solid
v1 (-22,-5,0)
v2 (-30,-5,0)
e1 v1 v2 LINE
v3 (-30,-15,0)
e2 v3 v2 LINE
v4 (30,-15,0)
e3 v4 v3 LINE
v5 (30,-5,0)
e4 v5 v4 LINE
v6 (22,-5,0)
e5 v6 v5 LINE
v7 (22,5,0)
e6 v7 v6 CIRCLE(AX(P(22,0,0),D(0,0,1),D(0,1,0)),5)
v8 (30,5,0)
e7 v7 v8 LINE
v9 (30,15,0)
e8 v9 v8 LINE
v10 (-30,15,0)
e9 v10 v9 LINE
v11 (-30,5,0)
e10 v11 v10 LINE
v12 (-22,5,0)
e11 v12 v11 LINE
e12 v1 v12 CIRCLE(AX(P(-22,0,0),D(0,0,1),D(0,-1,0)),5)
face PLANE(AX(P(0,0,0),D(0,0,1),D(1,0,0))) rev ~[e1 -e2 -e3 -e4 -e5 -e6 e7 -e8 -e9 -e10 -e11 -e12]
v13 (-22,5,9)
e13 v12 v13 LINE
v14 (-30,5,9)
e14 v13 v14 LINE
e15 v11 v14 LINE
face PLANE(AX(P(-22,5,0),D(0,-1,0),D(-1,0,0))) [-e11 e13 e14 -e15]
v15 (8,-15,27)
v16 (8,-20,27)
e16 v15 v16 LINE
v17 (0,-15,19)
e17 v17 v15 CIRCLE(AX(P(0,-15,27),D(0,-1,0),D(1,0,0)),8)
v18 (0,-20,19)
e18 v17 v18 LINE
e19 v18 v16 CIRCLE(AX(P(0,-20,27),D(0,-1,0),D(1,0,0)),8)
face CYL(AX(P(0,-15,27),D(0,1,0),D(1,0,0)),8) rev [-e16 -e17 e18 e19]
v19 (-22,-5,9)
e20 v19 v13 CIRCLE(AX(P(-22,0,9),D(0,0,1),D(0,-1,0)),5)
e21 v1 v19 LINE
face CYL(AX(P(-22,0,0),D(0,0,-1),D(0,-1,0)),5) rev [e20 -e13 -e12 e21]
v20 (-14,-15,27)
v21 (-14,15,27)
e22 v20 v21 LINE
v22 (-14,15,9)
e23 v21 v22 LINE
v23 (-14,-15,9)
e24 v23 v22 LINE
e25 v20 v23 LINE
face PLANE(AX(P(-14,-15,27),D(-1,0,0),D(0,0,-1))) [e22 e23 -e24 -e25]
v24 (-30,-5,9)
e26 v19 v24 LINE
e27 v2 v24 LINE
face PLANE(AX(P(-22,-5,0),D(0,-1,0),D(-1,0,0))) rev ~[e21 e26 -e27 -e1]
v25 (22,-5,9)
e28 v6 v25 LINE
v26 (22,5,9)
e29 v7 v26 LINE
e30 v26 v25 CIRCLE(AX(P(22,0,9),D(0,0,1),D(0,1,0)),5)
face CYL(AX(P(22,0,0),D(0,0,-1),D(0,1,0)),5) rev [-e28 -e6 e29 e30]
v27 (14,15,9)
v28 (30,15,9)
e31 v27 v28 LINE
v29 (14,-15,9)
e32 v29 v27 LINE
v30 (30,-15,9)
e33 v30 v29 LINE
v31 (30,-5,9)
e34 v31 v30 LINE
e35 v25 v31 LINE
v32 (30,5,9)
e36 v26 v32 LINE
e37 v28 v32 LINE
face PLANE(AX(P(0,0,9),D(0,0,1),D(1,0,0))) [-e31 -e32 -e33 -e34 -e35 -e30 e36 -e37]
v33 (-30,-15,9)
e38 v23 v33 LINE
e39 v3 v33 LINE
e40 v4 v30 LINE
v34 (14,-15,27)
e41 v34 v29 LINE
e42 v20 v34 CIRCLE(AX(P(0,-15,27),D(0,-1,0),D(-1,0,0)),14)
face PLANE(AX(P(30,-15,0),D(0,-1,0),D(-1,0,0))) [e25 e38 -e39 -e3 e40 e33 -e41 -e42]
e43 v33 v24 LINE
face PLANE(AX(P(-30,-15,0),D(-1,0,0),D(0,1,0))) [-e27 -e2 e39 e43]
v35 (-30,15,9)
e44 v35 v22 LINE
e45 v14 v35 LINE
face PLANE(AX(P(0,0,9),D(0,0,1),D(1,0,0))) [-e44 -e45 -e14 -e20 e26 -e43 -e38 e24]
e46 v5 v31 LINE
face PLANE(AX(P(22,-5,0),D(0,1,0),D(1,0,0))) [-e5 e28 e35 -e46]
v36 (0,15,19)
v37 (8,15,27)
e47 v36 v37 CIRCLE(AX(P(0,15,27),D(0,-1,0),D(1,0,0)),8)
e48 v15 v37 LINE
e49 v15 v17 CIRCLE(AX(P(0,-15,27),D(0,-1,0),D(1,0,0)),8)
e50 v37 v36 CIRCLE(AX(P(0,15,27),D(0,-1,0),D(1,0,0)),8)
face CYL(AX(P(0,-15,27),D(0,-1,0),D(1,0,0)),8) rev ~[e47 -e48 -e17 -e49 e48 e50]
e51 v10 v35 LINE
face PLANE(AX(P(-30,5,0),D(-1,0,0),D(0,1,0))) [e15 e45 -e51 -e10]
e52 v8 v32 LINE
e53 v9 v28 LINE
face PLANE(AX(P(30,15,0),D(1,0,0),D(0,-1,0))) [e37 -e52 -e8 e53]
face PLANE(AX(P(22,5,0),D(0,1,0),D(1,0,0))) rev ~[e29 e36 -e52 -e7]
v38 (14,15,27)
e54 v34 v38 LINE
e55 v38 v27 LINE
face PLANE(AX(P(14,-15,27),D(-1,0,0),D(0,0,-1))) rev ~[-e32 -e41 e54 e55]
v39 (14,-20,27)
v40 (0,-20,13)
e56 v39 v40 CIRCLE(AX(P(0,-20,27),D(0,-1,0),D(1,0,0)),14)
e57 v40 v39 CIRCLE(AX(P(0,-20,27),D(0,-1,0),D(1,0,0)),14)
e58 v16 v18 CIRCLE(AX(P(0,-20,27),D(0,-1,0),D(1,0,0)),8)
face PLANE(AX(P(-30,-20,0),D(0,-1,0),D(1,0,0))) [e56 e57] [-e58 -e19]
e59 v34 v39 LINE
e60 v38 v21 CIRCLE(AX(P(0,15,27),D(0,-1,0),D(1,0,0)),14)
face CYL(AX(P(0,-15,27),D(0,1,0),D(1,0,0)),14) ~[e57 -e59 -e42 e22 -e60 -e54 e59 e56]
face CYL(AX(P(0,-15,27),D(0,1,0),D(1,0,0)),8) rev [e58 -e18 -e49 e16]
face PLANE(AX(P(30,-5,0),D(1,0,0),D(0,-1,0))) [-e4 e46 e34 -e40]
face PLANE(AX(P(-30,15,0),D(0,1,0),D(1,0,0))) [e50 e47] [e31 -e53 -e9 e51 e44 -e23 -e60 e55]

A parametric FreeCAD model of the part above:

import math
import FreeCAD as App
import Part
import Sketcher
from FreeCAD import Vector

doc = App.newDocument("Part")
body = doc.addObject("PartDesign::Body", "Body")

sketch1 = body.newObject("Sketcher::SketchObject", "Sketch")
sketch1.AttachmentSupport = (doc.getObject("XY_Plane"), [""])
sketch1.MapMode = "FlatFace"
sketch1.addGeometry(Part.LineSegment(Vector(30, 15, 0), Vector(-30, 15, 0)), False)
sketch1.addGeometry(Part.LineSegment(Vector(-30, 15, 0), Vector(-30, 5, 0)), False)
sketch1.addGeometry(Part.LineSegment(Vector(-30, 5, 0), Vector(-22, 5, 0)), False)
sketch1.addGeometry(Part.ArcOfCircle(Part.Circle(Vector(-22, 0, 0), Vector(0, 0, 1), 5), math.radians(-90), math.radians(90)), False)
sketch1.addGeometry(Part.LineSegment(Vector(-22, -5, 0), Vector(-30, -5, 0)), False)
sketch1.addGeometry(Part.LineSegment(Vector(-30, -5, 0), Vector(-30, -15, 0)), False)
sketch1.addGeometry(Part.LineSegment(Vector(-30, -15, 0), Vector(30, -15, 0)), False)
sketch1.addGeometry(Part.LineSegment(Vector(30, -15, 0), Vector(30, -5, 0)), False)
sketch1.addGeometry(Part.LineSegment(Vector(30, -5, 0), Vector(22, -5, 0)), False)
sketch1.addGeometry(Part.ArcOfCircle(Part.Circle(Vector(22, 0, 0), Vector(0, 0, 1), 5), math.radians(90), math.radians(270)), False)
sketch1.addGeometry(Part.LineSegment(Vector(22, 5, 0), Vector(30, 5, 0)), False)
sketch1.addGeometry(Part.LineSegment(Vector(30, 5, 0), Vector(30, 15, 0)), False)
sketch1.addConstraint(Sketcher.Constraint("Coincident", 0, 2, 1, 1))
sketch1.addConstraint(Sketcher.Constraint("Coincident", 1, 2, 2, 1))
sketch1.addConstraint(Sketcher.Constraint("Tangent", 2, 2, 3, 2))
sketch1.addConstraint(Sketcher.Constraint("Tangent", 3, 1, 4, 1))
sketch1.addConstraint(Sketcher.Constraint("Coincident", 4, 2, 5, 1))
sketch1.addConstraint(Sketcher.Constraint("Coincident", 5, 2, 6, 1))
sketch1.addConstraint(Sketcher.Constraint("Coincident", 6, 2, 7, 1))
sketch1.addConstraint(Sketcher.Constraint("Coincident", 7, 2, 8, 1))
sketch1.addConstraint(Sketcher.Constraint("Tangent", 8, 2, 9, 2))
sketch1.addConstraint(Sketcher.Constraint("Tangent", 9, 1, 10, 1))
sketch1.addConstraint(Sketcher.Constraint("Coincident", 10, 2, 11, 1))
sketch1.addConstraint(Sketcher.Constraint("Coincident", 11, 2, 0, 1))
sketch1.addConstraint(Sketcher.Constraint("Horizontal", 0))
sketch1.addConstraint(Sketcher.Constraint("Vertical", 1))
sketch1.addConstraint(Sketcher.Constraint("Horizontal", 2))
sketch1.addConstraint(Sketcher.Constraint("Horizontal", 4))
sketch1.addConstraint(Sketcher.Constraint("Vertical", 5))
sketch1.addConstraint(Sketcher.Constraint("Horizontal", 6))
sketch1.addConstraint(Sketcher.Constraint("Vertical", 7))
sketch1.addConstraint(Sketcher.Constraint("Horizontal", 8))
sketch1.addConstraint(Sketcher.Constraint("Horizontal", 10))
sketch1.addConstraint(Sketcher.Constraint("Vertical", 11))
sketch1.addConstraint(Sketcher.Constraint("Equal", 3, 9))
sketch1.addConstraint(Sketcher.Constraint("Symmetric", 3, 3, 9, 3, -1, 1))
sketch1.addConstraint(Sketcher.Constraint("Symmetric", 0, 2, 6, 2, -1, 1))
sketch1.addConstraint(Sketcher.Constraint("Symmetric", 4, 2, 7, 2, -2))
sketch1.addConstraint(Sketcher.Constraint("Vertical", 7, 2, 10, 2))
sketch1.addConstraint(Sketcher.Constraint("Radius", 3, 5.0))
sketch1.addConstraint(Sketcher.Constraint("DistanceX", 0, 2, 0, 1, 60.0))
sketch1.addConstraint(Sketcher.Constraint("DistanceY", 1, 2, 1, 1, 10.0))
sketch1.addConstraint(Sketcher.Constraint("DistanceX", 2, 1, 2, 2, 8.0))
pad1 = body.newObject("PartDesign::Pad", "Pad")
pad1.Profile = sketch1
pad1.Length = 9

sketch2 = body.newObject("Sketcher::SketchObject", "Sketch001")
sketch2.AttachmentSupport = (doc.getObject("XZ_Plane"), [""])
sketch2.MapMode = "FlatFace"
sketch2.AttachmentOffset = App.Placement(Vector(0, 0, 15), App.Rotation())
sketch2.addGeometry(Part.LineSegment(Vector(-14, 9, 0), Vector(14, 9, 0)), False)
sketch2.addGeometry(Part.LineSegment(Vector(14, 9, 0), Vector(14, 27, 0)), False)
sketch2.addGeometry(Part.ArcOfCircle(Part.Circle(Vector(0, 27, 0), Vector(0, 0, 1), 14), math.radians(0), math.radians(180)), False)
sketch2.addGeometry(Part.LineSegment(Vector(-14, 27, 0), Vector(-14, 9, 0)), False)
sketch2.addGeometry(Part.Circle(Vector(0, 27, 0), Vector(0, 0, 1), 8), False)
sketch2.addConstraint(Sketcher.Constraint("Coincident", 0, 2, 1, 1))
sketch2.addConstraint(Sketcher.Constraint("Tangent", 1, 2, 2, 1))
sketch2.addConstraint(Sketcher.Constraint("Tangent", 2, 2, 3, 1))
sketch2.addConstraint(Sketcher.Constraint("Coincident", 3, 2, 0, 1))
sketch2.addConstraint(Sketcher.Constraint("Horizontal", 0))
sketch2.addConstraint(Sketcher.Constraint("Vertical", 1))
sketch2.addConstraint(Sketcher.Constraint("Vertical", 3))
sketch2.addConstraint(Sketcher.Constraint("Coincident", 4, 3, 2, 3))
sketch2.addConstraint(Sketcher.Constraint("PointOnObject", 2, 3, -2))
sketch2.addConstraint(Sketcher.Constraint("Diameter", 4, 16.0))
sketch2.addConstraint(Sketcher.Constraint("Radius", 2, 14.0))
sketch2.addConstraint(Sketcher.Constraint("DistanceY", -1, 1, 2, 3, 27.0))
sketch2.addConstraint(Sketcher.Constraint("DistanceY", 1, 1, 1, 2, 18.0))
pad2 = body.newObject("PartDesign::Pad", "Pad001")
pad2.Profile = sketch2
pad2.Length = 30
pad2.Reversed = True

sketch3 = body.newObject("Sketcher::SketchObject", "Sketch002")
sketch3.AttachmentSupport = (doc.getObject("XZ_Plane"), [""])
sketch3.MapMode = "FlatFace"
sketch3.AttachmentOffset = App.Placement(Vector(0, 0, 15), App.Rotation())
sketch3.addGeometry(Part.Circle(Vector(0, 27, 0), Vector(0, 0, 1), 14), False)
sketch3.addGeometry(Part.Circle(Vector(0, 27, 0), Vector(0, 0, 1), 8), False)
sketch3.addConstraint(Sketcher.Constraint("Coincident", 1, 3, 0, 3))
sketch3.addConstraint(Sketcher.Constraint("PointOnObject", 0, 3, -2))
sketch3.addConstraint(Sketcher.Constraint("Diameter", 0, 28.0))
sketch3.addConstraint(Sketcher.Constraint("Diameter", 1, 16.0))
sketch3.addConstraint(Sketcher.Constraint("DistanceY", -1, 1, 0, 3, 27.0))
pad3 = body.newObject("PartDesign::Pad", "Pad002")
pad3.Profile = sketch3
pad3.Length = 5

doc.recompute()
